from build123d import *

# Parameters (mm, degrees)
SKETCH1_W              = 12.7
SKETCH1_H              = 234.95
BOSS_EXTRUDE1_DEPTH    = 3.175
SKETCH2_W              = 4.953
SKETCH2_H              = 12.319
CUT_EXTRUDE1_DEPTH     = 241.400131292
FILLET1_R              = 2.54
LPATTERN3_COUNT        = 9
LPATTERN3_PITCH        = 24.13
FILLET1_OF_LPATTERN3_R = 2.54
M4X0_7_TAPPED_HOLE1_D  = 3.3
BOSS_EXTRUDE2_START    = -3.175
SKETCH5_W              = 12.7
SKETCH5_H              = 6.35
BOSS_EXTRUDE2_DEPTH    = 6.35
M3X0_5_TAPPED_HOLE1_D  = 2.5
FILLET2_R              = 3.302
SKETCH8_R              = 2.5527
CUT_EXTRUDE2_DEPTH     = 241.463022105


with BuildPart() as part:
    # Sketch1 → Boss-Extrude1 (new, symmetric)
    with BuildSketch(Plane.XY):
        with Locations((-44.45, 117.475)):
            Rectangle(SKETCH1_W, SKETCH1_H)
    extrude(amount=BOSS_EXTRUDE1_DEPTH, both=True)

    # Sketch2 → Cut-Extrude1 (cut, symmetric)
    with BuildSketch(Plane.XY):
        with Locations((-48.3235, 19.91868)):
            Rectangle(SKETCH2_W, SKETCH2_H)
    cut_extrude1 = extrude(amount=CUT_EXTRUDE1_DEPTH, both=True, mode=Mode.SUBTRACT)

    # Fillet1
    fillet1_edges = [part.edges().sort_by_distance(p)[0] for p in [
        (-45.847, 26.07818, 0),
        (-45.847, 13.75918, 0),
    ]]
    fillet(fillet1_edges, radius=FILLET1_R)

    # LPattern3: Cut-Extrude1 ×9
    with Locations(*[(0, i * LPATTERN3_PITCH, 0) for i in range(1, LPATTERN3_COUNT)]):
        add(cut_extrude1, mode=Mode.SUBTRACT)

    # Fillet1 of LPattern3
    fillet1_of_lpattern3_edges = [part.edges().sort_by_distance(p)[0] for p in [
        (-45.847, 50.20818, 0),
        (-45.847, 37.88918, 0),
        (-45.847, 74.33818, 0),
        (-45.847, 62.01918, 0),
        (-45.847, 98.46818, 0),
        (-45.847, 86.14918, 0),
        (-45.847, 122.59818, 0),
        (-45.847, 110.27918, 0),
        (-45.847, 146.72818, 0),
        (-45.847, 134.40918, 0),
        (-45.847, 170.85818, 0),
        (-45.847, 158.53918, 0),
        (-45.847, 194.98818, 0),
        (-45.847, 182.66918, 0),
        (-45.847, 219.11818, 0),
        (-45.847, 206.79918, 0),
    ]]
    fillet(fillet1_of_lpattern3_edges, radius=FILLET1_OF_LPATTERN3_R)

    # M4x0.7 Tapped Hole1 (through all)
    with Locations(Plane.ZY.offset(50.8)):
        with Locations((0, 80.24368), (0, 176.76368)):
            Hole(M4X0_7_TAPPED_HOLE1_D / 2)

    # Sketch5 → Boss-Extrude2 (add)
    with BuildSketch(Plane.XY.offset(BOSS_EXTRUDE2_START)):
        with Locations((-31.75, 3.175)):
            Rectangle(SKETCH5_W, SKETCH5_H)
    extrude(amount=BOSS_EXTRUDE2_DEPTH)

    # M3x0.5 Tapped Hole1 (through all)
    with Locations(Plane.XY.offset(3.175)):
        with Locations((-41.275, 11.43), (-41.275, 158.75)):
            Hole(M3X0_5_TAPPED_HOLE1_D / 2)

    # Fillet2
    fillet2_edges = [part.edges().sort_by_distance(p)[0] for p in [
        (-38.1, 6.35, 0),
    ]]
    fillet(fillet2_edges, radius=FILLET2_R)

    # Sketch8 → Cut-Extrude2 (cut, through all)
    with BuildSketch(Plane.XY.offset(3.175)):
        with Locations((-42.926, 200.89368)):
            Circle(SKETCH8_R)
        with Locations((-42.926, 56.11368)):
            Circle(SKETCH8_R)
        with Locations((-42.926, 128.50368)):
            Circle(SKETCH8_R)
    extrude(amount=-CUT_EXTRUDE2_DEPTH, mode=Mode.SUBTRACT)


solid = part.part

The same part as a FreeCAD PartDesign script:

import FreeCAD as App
import Part
import Sketcher
from FreeCAD import Vector
Q = App.Units.Quantity


def edges_at(feature, points):
    """Names of the edges that pass closest to the given points."""
    edges = feature.Shape.Edges
    near = lambda p: min(range(len(edges)), key=lambda i: edges[i].distToShape(Part.Vertex(*p))[0])
    return sorted({f"Edge{near(p) + 1}" for p in points})


def add_polygon(sketch, points):
    """Adds a closed chain of lines whose ends are joined by coincident constraints."""
    first, n = sketch.GeometryCount, len(points)
    for a, b in zip(points, points[1:] + points[:1]):
        sketch.addGeometry(Part.LineSegment(App.Vector(*a, 0), App.Vector(*b, 0)), False)
    for i in range(n):
        sketch.addConstraint(Sketcher.Constraint("Coincident", first + i, 2, first + (i + 1) % n, 1))

doc = App.newDocument("Part")
body = doc.addObject("PartDesign::Body", "Body")

# Sketch on XY plane
sketch1 = body.newObject("Sketcher::SketchObject", "Sketch")
sketch1.AttachmentSupport = (doc.getObject("XY_Plane"), [""])
sketch1.MapMode = "FlatFace"
add_polygon(sketch1, [(-51, 235), (-51, 0), (-38, 0), (-38, 235)])  # lines 0-3
sketch1.addConstraint([
    Sketcher.Constraint("Vertical", 0),
    Sketcher.Constraint("Horizontal", 1),
    Sketcher.Constraint("Vertical", 2),
    Sketcher.Constraint("Horizontal", 3),
    Sketcher.Constraint("PointOnObject", 0, 2, -1),
    Sketcher.Constraint("DistanceX", 1, 1, 1, 2, Q("0.5 in")),
    Sketcher.Constraint("DistanceX", 0, 2, -1, 1, Q("2 in")),
    Sketcher.Constraint("DistanceY", 0, 2, 0, 1, Q("9.25 in")),
])
pad1 = body.newObject("PartDesign::Pad", "Pad")
pad1.Profile = sketch1
pad1.Length = Q("0.25 in")
pad1.Midplane = True

# Sketch on XY plane
sketch2 = body.newObject("Sketcher::SketchObject", "Sketch001")
sketch2.AttachmentSupport = (doc.getObject("XY_Plane"), [""])
sketch2.MapMode = "FlatFace"
add_polygon(sketch2, [(-50.8, 26.1), (-50.8, 13.8), (-45.8, 13.8), (-45.8, 26.1)])  # lines 0-3
sketch2.addConstraint([
    Sketcher.Constraint("Vertical", 0),
    Sketcher.Constraint("Horizontal", 1),
    Sketcher.Constraint("Vertical", 2),
    Sketcher.Constraint("Horizontal", 3),
    Sketcher.Constraint("DistanceX", 0, 2, -1, 1, Q("2 in")),
    Sketcher.Constraint("DistanceX", 1, 1, 1, 2, Q("0.195 in")),
    Sketcher.Constraint("DistanceY", 0, 2, 0, 1, Q("0.485 in")),
    Sketcher.Constraint("DistanceY", -1, 1, 0, 2, Q("0.5417 in")),
])
pocket1 = body.newObject("PartDesign::Pocket", "Pocket")
pocket1.Profile = sketch2
pocket1.Length = 482.800263
pocket1.Midplane = True
doc.recompute()

fillet = body.newObject("PartDesign::Fillet", "Fillet")
fillet.Base = (pocket1, edges_at(pocket1, [(-45.847, 26.078, 0), (-45.847, 13.759, 0)]))
fillet.Radius = Q("0.1 in")
doc.recompute()

linearpattern = body.newObject("PartDesign::LinearPattern", "LinearPattern")
linearpattern.Originals = [pocket1]
linearpattern.Direction = (doc.getObject("Y_Axis"), [""])
linearpattern.Mode = "offset"
linearpattern.Offset = Q("0.95 in")
linearpattern.Occurrences = 9
body.Tip = linearpattern
doc.recompute()

fillet2 = body.newObject("PartDesign::Fillet", "Fillet001")
fillet2.Base = (linearpattern, edges_at(linearpattern, [
    (-45.847, 50.208, 0),
    (-45.847, 37.889, 0),
    (-45.847, 74.338, 0),
    (-45.847, 62.019, 0),
    (-45.847, 98.468, 0),
    (-45.847, 86.149, 0),
    (-45.847, 122.598, 0),
    (-45.847, 110.279, 0),
    (-45.847, 146.728, 0),
    (-45.847, 134.409, 0),
    (-45.847, 170.858, 0),
    (-45.847, 158.539, 0),
    (-45.847, 194.988, 0),
    (-45.847, 182.669, 0),
    (-45.847, 219.118, 0),
    (-45.847, 206.799, 0),
]))
fillet2.Radius = Q("0.1 in")

# Sketch on YZ plane
sketch3 = body.newObject("Sketcher::SketchObject", "Sketch002")
sketch3.AttachmentSupport = (doc.getObject("YZ_Plane"), [""])
sketch3.MapMode = "FlatFace"
sketch3.AttachmentOffset = App.Placement(Vector(0, 0, -2 * 25.4), App.Rotation())
sketch3.addGeometry([
    Part.Circle(Vector(80.2, 0, 0), Vector(0, 0, 1), 1.6),
    Part.Circle(Vector(176.8, 0, 0), Vector(0, 0, 1), 1.6),
], False)
sketch3.addConstraint([
    Sketcher.Constraint("Equal", 0, 1),
    Sketcher.Constraint("PointOnObject", 0, 3, -1),
    Sketcher.Constraint("PointOnObject", 1, 3, -1),
    Sketcher.Constraint("DistanceX", 0, 3, 1, 3, Q("3.8 in")),
    Sketcher.Constraint("Diameter", 0, 3.3),
    Sketcher.Constraint("DistanceX", -1, 1, 0, 3, Q("3.1592 in")),
])
doc.recompute()
hole = body.newObject("PartDesign::Hole", "Hole")
hole.Profile = sketch3
hole.ThreadType = "None"
hole.Diameter = 3.3
hole.DepthType = "ThroughAll"
hole.Reversed = True

# Sketch on XY plane
sketch4 = body.newObject("Sketcher::SketchObject", "Sketch003")
sketch4.AttachmentSupport = (doc.getObject("XY_Plane"), [""])
sketch4.MapMode = "FlatFace"
sketch4.AttachmentOffset = App.Placement(Vector(0, 0, -0.125 * 25.4), App.Rotation())
add_polygon(sketch4, [(-38, 6), (-38, 0), (-25, 0), (-25, 6)])  # lines 0-3
sketch4.addConstraint([
    Sketcher.Constraint("Vertical", 0),
    Sketcher.Constraint("Horizontal", 1),
    Sketcher.Constraint("Vertical", 2),
    Sketcher.Constraint("Horizontal", 3),
    Sketcher.Constraint("PointOnObject", 0, 2, -1),
    Sketcher.Constraint("DistanceX", 1, 1, 1, 2, Q("0.5 in")),
    Sketcher.Constraint("DistanceX", 1, 2, -1, 1, Q("1 in")),
    Sketcher.Constraint("DistanceY", 0, 2, 0, 1, Q("0.25 in")),
])
pad2 = body.newObject("PartDesign::Pad", "Pad001")
pad2.Profile = sketch4
pad2.Length = Q("0.25 in")

# Sketch on XY plane
sketch5 = body.newObject("Sketcher::SketchObject", "Sketch004")
sketch5.AttachmentSupport = (doc.getObject("XY_Plane"), [""])
sketch5.MapMode = "FlatFace"
sketch5.AttachmentOffset = App.Placement(Vector(0, 0, 0.125 * 25.4), App.Rotation())
sketch5.addGeometry([
    Part.Circle(Vector(-41.3, 11.4, 0), Vector(0, 0, 1), 1.2),
    Part.Circle(Vector(-41.3, 158.8, 0), Vector(0, 0, 1), 1.2),
], False)
sketch5.addConstraint([
    Sketcher.Constraint("Equal", 0, 1),
    Sketcher.Constraint("Vertical", 0, 3, 1, 3),
    Sketcher.Constraint("DistanceY", 0, 3, 1, 3, Q("5.8 in")),
    Sketcher.Constraint("Diameter", 0, 2.5),
    Sketcher.Constraint("DistanceY", -1, 1, 0, 3, Q("0.45 in")),
    Sketcher.Constraint("DistanceX", 0, 3, -1, 1, Q("1.625 in")),
])
doc.recompute()
hole2 = body.newObject("PartDesign::Hole", "Hole001")
hole2.Profile = sketch5
hole2.ThreadType = "None"
hole2.Diameter = 2.5
hole2.DepthType = "ThroughAll"
doc.recompute()

fillet3 = body.newObject("PartDesign::Fillet", "Fillet002")
fillet3.Base = (hole2, edges_at(hole2, [(-38.1, 6.35, 0)]))
fillet3.Radius = Q("0.13 in")

# Sketch on XY plane
sketch6 = body.newObject("Sketcher::SketchObject", "Sketch005")
sketch6.AttachmentSupport = (doc.getObject("XY_Plane"), [""])
sketch6.MapMode = "FlatFace"
sketch6.AttachmentOffset = App.Placement(Vector(0, 0, 0.125 * 25.4), App.Rotation())
sketch6.addGeometry([
    Part.Circle(Vector(-42.9, 200.9, 0), Vector(0, 0, 1), 2.6),
    Part.Circle(Vector(-42.9, 56.1, 0), Vector(0, 0, 1), 2.6),
    Part.Circle(Vector(-42.9, 128.5, 0), Vector(0, 0, 1), 2.6),
], False)
sketch6.addConstraint([
    Sketcher.Constraint("Equal", 0, 1),
    Sketcher.Constraint("Equal", 1, 2),
    Sketcher.Constraint("Vertical", 0, 3, 1, 3),
    Sketcher.Constraint("Vertical", 1, 3, 2, 3),
    Sketcher.Constraint("Diameter", 0, Q("0.201 in")),
    Sketcher.Constraint("DistanceY", 1, 3, 0, 3, Q("5.7 in")),
    Sketcher.Constraint("DistanceX", 0, 3, -1, 1, Q("1.69 in")),
    Sketcher.Constraint("DistanceY", 2, 3, 0, 3, Q("2.85 in")),
    Sketcher.Constraint("DistanceY", -1, 1, 0, 3, Q("7.9092 in")),
])
pocket2 = body.newObject("PartDesign::Pocket", "Pocket001")
pocket2.Profile = sketch6
pocket2.Type = "ThroughAll"

doc.recompute()
